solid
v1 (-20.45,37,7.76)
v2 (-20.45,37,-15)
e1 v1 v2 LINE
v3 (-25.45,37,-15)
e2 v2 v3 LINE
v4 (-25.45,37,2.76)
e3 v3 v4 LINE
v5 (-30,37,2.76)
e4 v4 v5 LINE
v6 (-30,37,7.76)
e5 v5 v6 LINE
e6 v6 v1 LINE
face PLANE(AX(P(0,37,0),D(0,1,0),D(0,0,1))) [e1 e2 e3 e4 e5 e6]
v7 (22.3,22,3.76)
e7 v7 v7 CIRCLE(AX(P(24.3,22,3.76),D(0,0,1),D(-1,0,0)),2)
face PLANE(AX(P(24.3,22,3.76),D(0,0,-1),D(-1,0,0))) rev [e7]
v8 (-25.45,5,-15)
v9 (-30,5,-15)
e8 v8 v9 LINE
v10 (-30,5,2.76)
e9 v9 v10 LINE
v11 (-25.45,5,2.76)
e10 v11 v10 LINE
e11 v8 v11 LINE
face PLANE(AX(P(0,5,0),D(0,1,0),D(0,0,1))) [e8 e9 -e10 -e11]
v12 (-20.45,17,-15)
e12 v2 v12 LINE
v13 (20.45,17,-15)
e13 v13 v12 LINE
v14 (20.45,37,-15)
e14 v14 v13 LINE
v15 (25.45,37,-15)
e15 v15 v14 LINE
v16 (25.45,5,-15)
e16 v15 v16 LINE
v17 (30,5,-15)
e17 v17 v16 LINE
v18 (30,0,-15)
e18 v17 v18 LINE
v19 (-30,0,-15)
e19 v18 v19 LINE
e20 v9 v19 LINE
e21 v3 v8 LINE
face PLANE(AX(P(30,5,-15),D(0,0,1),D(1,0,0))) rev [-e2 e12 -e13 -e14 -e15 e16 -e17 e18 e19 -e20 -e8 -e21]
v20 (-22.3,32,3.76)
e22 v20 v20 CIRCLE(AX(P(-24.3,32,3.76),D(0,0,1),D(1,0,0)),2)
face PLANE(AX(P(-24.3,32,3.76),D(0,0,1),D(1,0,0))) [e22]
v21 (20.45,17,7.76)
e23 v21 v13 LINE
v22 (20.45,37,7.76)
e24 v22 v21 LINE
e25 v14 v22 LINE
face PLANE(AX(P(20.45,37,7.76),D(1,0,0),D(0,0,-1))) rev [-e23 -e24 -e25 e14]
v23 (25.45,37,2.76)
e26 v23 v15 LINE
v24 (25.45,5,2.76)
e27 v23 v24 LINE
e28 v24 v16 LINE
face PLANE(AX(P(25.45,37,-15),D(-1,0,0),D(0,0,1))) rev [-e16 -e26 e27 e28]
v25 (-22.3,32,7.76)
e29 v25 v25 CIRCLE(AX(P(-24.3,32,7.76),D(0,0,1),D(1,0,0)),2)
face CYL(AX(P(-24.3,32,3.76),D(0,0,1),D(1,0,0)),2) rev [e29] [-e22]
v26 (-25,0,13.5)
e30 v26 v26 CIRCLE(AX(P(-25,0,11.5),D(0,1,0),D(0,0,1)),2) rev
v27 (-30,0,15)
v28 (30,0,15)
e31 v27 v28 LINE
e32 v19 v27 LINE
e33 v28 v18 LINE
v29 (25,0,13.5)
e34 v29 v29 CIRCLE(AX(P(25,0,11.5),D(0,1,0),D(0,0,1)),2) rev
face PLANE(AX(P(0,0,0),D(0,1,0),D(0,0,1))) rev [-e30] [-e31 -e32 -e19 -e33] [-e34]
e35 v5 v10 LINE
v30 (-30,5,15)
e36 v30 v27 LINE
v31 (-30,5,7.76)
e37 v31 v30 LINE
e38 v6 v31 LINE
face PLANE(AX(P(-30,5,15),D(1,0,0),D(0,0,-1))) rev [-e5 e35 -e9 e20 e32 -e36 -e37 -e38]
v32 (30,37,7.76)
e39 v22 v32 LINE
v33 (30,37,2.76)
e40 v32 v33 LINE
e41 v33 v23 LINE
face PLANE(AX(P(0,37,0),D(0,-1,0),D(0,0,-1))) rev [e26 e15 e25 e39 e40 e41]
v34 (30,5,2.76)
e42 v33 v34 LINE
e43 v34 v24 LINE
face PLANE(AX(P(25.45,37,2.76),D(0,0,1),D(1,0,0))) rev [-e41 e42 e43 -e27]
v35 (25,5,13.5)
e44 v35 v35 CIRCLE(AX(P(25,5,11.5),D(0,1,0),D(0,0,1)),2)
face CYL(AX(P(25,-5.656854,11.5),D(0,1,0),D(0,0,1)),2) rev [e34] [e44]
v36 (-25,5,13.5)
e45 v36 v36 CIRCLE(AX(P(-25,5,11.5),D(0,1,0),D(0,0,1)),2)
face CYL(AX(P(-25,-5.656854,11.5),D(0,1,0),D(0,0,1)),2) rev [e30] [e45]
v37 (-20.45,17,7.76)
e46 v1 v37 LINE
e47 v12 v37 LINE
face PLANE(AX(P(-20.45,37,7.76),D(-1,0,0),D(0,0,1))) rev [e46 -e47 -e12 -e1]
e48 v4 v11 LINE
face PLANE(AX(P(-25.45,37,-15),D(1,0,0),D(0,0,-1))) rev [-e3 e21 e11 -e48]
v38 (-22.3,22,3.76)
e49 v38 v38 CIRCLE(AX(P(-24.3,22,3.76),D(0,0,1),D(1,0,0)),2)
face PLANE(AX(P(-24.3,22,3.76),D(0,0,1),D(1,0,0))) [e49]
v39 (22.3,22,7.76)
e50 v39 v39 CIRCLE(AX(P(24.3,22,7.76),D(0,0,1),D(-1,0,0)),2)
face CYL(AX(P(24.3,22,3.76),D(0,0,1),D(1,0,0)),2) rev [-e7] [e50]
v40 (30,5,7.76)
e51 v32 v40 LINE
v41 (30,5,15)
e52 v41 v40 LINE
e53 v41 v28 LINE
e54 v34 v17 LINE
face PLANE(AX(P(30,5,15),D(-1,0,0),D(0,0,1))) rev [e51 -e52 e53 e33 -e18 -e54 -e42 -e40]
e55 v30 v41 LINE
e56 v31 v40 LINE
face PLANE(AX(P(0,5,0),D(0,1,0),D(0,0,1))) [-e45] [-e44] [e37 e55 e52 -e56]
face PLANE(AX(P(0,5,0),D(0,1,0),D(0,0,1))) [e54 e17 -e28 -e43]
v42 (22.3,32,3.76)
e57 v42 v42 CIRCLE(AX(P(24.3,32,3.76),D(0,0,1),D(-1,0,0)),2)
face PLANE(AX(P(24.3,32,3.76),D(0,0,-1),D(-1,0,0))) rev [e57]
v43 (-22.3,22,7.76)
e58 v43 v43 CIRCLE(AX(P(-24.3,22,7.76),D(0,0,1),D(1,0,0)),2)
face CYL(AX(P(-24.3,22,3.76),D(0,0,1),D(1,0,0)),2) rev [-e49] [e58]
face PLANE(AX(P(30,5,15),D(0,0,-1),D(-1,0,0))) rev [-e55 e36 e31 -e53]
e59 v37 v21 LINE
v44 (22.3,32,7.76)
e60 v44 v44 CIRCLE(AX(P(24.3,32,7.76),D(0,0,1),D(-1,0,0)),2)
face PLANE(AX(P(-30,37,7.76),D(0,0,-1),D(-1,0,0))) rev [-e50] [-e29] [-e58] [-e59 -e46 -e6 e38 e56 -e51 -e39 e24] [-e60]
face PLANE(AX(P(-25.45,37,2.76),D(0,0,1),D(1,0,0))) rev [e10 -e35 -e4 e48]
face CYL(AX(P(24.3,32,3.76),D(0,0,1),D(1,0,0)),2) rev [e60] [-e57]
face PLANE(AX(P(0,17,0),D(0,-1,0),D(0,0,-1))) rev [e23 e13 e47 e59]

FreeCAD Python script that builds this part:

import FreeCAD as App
import Part
import Sketcher

V = App.Vector

doc = App.newDocument("Part")
body = doc.addObject("PartDesign::Body", "Body")

# Sketch on XZ plane
sketch1 = body.newObject("Sketcher::SketchObject", "Sketch")
sketch1.AttachmentSupport = (doc.getObject("XZ_Plane"), [""])
sketch1.MapMode = "FlatFace"
sketch1.addGeometry([
    Part.LineSegment(V(-30, -15, 0), V(-30, 15, 0)),
    Part.LineSegment(V(-30, 15, 0), V(30, 15, 0)),
    Part.LineSegment(V(30, 15, 0), V(30, -15, 0)),
    Part.LineSegment(V(30, -15, 0), V(-30, -15, 0)),
], False)
sketch1.addConstraint([
    Sketcher.Constraint("Coincident", 0, 2, 1, 1),
    Sketcher.Constraint("Coincident", 1, 2, 2, 1),
    Sketcher.Constraint("Coincident", 2, 2, 3, 1),
    Sketcher.Constraint("Coincident", 3, 2, 0, 1),
    Sketcher.Constraint("Vertical", 0),
    Sketcher.Constraint("Horizontal", 1),
    Sketcher.Constraint("Vertical", 2),
    Sketcher.Constraint("Horizontal", 3),
    Sketcher.Constraint("Symmetric", 0, 2, 2, 2, -1, 1),
    Sketcher.Constraint("DistanceX", 1, 1, 1, 2, 60.0),
    Sketcher.Constraint("DistanceY", 0, 1, 0, 2, 30.0),
])
pad1 = body.newObject("PartDesign::Pad", "Pad")
pad1.Profile = sketch1
pad1.Length = 5
pad1.Reversed = True

# Sketch on XZ plane
sketch2 = body.newObject("Sketcher::SketchObject", "Sketch001")
sketch2.AttachmentSupport = (doc.getObject("XZ_Plane"), [""])
sketch2.MapMode = "FlatFace"
sketch2.AttachmentOffset = App.Placement(V(0, 0, -5), App.Rotation())
sketch2.addGeometry([
    Part.LineSegment(V(-20.4, -15, 0), V(-25.4, -15, 0)),  # 0
    Part.LineSegment(V(-25.4, -15, 0), V(-25.4, 2.8, 0)),  # 1
    Part.LineSegment(V(-25.4, 2.8, 0), V(-30, 2.8, 0)),  # 2
    Part.LineSegment(V(-30, 2.8, 0), V(-30, 7.8, 0)),  # 3
    Part.LineSegment(V(-30, 7.8, 0), V(-20.4, 7.8, 0)),  # 4
    Part.LineSegment(V(-20.4, 7.8, 0), V(-20.4, -15, 0)),  # 5
    Part.LineSegment(V(30, 7.8, 0), V(30, 2.8, 0)),  # 6
    Part.LineSegment(V(30, 2.8, 0), V(25.4, 2.8, 0)),  # 7
    Part.LineSegment(V(25.4, 2.8, 0), V(25.4, -15, 0)),  # 8
    Part.LineSegment(V(25.4, -15, 0), V(20.4, -15, 0)),  # 9
    Part.LineSegment(V(20.4, -15, 0), V(20.4, 7.8, 0)),  # 10
    Part.LineSegment(V(20.4, 7.8, 0), V(30, 7.8, 0)),  # 11
], False)
sketch2.addConstraint([
    Sketcher.Constraint("Coincident", 0, 2, 1, 1),
    Sketcher.Constraint("Coincident", 1, 2, 2, 1),
    Sketcher.Constraint("Coincident", 2, 2, 3, 1),
    Sketcher.Constraint("Coincident", 3, 2, 4, 1),
    Sketcher.Constraint("Coincident", 4, 2, 5, 1),
    Sketcher.Constraint("Coincident", 5, 2, 0, 1),
    Sketcher.Constraint("Coincident", 6, 2, 7, 1),
    Sketcher.Constraint("Coincident", 7, 2, 8, 1),
    Sketcher.Constraint("Coincident", 8, 2, 9, 1),
    Sketcher.Constraint("Coincident", 9, 2, 10, 1),
    Sketcher.Constraint("Coincident", 10, 2, 11, 1),
    Sketcher.Constraint("Coincident", 11, 2, 6, 1),
    Sketcher.Constraint("Horizontal", 0),
    Sketcher.Constraint("Vertical", 1),
    Sketcher.Constraint("Horizontal", 2),
    Sketcher.Constraint("Vertical", 3),
    Sketcher.Constraint("Horizontal", 4),
    Sketcher.Constraint("Vertical", 5),
    Sketcher.Constraint("Vertical", 6),
    Sketcher.Constraint("Horizontal", 7),
    Sketcher.Constraint("Vertical", 8),
    Sketcher.Constraint("Horizontal", 9),
    Sketcher.Constraint("Vertical", 10),
    Sketcher.Constraint("Horizontal", 11),
    Sketcher.Constraint("Symmetric", 2, 2, 6, 2, -2),
    Sketcher.Constraint("Symmetric", 0, 2, 8, 2, -2),
    Sketcher.Constraint("Symmetric", 4, 2, 10, 2, -2),
    Sketcher.Constraint("Equal", 9, 3),
    Sketcher.Constraint("DistanceX", 0, 2, 0, 1, 5.0),
    Sketcher.Constraint("DistanceY", 0, 2, -1, 1, 15.0),
    Sketcher.Constraint("DistanceX", 2, 2, -1, 1, 30.0),
    Sketcher.Constraint("DistanceX", 2, 2, 2, 1, 4.55),
    Sketcher.Constraint("DistanceY", 1, 1, 1, 2, 17.76),
])
pad2 = body.newObject("PartDesign::Pad", "Pad001")
pad2.Profile = sketch2
pad2.Length = 32
pad2.Reversed = True

# Sketch on XZ plane
sketch3 = body.newObject("Sketcher::SketchObject", "Sketch002")
sketch3.AttachmentSupport = (doc.getObject("XZ_Plane"), [""])
sketch3.MapMode = "FlatFace"
sketch3.AttachmentOffset = App.Placement(V(0, 0, -5), App.Rotation())
sketch3.addGeometry([
    Part.LineSegment(V(-20, -15, 0), V(-20, 8, 0)),
    Part.LineSegment(V(-20, 8, 0), V(20, 8, 0)),
    Part.LineSegment(V(20, 8, 0), V(20, -15, 0)),
    Part.LineSegment(V(20, -15, 0), V(-20, -15, 0)),
], False)
sketch3.addConstraint([
    Sketcher.Constraint("Coincident", 0, 2, 1, 1),
    Sketcher.Constraint("Coincident", 1, 2, 2, 1),
    Sketcher.Constraint("Coincident", 2, 2, 3, 1),
    Sketcher.Constraint("Coincident", 3, 2, 0, 1),
    Sketcher.Constraint("Vertical", 0),
    Sketcher.Constraint("Horizontal", 1),
    Sketcher.Constraint("Vertical", 2),
    Sketcher.Constraint("Horizontal", 3),
    Sketcher.Constraint("DistanceX", 1, 1, 1, 2, 40.9),
    Sketcher.Constraint("DistanceY", 2, 2, -1, 1, 15.0),
    Sketcher.Constraint("DistanceY", 0, 1, 0, 2, 22.76),
    Sketcher.Constraint("DistanceX", 0, 2, -1, 1, 20.45),
])
pad3 = body.newObject("PartDesign::Pad", "Pad002")
pad3.Profile = sketch3
pad3.Length = 12
pad3.Reversed = True

# Sketch on XZ plane
sketch4 = body.newObject("Sketcher::SketchObject", "Sketch003")
sketch4.AttachmentSupport = (doc.getObject("XZ_Plane"), [""])
sketch4.MapMode = "FlatFace"
sketch4.AttachmentOffset = App.Placement(V(0, 0, -5), App.Rotation())
sketch4.addGeometry([
    Part.Circle(V(-25, 11.5, 0), V(0, 0, 1), 2),
    Part.Circle(V(25, 11.5, 0), V(0, 0, 1), 2),
], False)
sketch4.addConstraint([
    Sketcher.Constraint("Equal", 0, 1),
    Sketcher.Constraint("Symmetric", 0, 3, 1, 3, -2),
    Sketcher.Constraint("Diameter", 0, 4.0),
    Sketcher.Constraint("DistanceX", 0, 3, -1, 1, 25.0),
    Sketcher.Constraint("DistanceY", -1, 1, 0, 3, 11.5),
])
pocket1 = body.newObject("PartDesign::Pocket", "Pocket")
pocket1.Profile = sketch4
pocket1.Length = 5
pocket1.Reversed = True

# Sketch on XY plane
sketch5 = body.newObject("Sketcher::SketchObject", "Sketch004")
sketch5.AttachmentSupport = (doc.getObject("XY_Plane"), [""])
sketch5.MapMode = "FlatFace"
sketch5.AttachmentOffset = App.Placement(V(0, 0, 7.76), App.Rotation())
sketch5.addGeometry([
    Part.Circle(V(-24.3, 32, 0), V(0, 0, 1), 2),
    Part.Circle(V(-24.3, 22, 0), V(0, 0, 1), 2),
    Part.Circle(V(24.3, 22, 0), V(0, 0, 1), 2),
    Part.Circle(V(24.3, 32, 0), V(0, 0, 1), 2),
], False)
sketch5.addConstraint([
    Sketcher.Constraint("Equal", 0, 1),
    Sketcher.Constraint("Equal", 1, 2),
    Sketcher.Constraint("Equal", 2, 3),
    Sketcher.Constraint("Symmetric", 1, 3, 2, 3, -2),
    Sketcher.Constraint("Symmetric", 0, 3, 3, 3, -2),
    Sketcher.Constraint("Vertical", 0, 3, 1, 3),
    Sketcher.Constraint("Diameter", 0, 4.0),
    Sketcher.Constraint("DistanceY", -1, 1, 0, 3, 32.0),
    Sketcher.Constraint("DistanceY", -1, 1, 1, 3, 22.0),
    Sketcher.Constraint("DistanceX", 0, 3, -1, 1, 24.3),
])
pocket2 = body.newObject("PartDesign::Pocket", "Pocket001")
pocket2.Profile = sketch5
pocket2.Length = 4

doc.recompute()
